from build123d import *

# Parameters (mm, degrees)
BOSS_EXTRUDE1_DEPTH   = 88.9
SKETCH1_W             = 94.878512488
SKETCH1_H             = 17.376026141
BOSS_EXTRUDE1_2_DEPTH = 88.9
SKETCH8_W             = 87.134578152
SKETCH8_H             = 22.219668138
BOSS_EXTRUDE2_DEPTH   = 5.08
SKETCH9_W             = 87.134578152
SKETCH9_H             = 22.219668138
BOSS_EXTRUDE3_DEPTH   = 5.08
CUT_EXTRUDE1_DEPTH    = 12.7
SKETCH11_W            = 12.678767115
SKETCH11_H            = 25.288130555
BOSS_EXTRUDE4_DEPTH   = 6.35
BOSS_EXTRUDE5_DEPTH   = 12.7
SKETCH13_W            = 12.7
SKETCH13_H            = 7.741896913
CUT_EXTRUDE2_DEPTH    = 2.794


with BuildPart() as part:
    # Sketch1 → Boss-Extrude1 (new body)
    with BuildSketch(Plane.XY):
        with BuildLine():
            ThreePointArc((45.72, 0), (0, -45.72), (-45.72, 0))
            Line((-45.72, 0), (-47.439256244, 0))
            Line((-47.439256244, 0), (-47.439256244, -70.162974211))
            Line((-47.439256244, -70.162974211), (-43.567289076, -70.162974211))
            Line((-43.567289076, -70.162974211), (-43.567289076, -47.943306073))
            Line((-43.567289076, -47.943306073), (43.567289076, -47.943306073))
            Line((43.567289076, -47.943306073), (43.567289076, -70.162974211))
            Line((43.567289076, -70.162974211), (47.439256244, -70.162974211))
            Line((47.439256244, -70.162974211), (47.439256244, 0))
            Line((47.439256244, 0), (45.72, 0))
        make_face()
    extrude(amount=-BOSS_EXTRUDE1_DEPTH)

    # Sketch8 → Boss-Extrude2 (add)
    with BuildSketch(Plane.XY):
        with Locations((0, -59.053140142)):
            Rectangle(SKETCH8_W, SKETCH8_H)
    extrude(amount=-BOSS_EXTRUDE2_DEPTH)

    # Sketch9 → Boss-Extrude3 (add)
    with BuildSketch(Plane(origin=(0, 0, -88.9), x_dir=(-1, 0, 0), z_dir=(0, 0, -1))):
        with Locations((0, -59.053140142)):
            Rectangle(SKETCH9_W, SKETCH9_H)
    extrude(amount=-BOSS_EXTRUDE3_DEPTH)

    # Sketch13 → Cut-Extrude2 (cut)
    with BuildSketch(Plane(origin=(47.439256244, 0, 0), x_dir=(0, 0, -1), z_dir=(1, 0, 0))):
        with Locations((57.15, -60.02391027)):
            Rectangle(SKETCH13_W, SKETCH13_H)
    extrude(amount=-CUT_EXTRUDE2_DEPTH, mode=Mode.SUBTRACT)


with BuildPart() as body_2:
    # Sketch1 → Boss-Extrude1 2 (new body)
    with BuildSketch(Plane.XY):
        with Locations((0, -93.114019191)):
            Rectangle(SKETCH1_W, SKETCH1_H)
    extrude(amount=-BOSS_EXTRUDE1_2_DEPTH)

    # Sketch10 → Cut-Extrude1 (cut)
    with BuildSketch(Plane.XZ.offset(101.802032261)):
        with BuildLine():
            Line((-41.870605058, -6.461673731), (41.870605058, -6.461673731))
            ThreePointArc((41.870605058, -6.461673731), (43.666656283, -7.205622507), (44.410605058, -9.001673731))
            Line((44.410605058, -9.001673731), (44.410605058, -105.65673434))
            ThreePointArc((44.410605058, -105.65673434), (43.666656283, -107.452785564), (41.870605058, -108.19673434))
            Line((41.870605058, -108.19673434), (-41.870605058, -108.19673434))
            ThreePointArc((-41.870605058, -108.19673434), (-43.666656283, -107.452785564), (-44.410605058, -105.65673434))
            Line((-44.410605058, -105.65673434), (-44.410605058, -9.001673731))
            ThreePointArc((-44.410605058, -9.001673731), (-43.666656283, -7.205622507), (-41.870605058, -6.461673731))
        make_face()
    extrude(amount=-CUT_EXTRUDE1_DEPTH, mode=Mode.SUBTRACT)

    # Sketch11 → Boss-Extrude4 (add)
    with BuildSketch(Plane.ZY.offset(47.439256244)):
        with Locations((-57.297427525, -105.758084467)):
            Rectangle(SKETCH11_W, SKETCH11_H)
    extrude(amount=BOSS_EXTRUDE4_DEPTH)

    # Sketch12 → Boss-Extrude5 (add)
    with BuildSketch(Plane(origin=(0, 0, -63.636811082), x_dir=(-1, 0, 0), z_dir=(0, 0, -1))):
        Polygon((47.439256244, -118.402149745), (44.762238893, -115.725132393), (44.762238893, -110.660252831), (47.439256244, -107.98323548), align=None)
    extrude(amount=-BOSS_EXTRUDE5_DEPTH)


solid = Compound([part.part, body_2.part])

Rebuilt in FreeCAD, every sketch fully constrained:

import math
import FreeCAD as App
import Part
import Sketcher

V = App.Vector
Q = App.Units.Quantity

doc = App.newDocument("Part")
body = doc.addObject("PartDesign::Body", "Body")

# Sketch on XY plane
sketch1 = doc.addObject("Sketcher::SketchObject", "Sketch")
body.addObject(sketch1)
sketch1.AttachmentSupport = (doc.XY_Plane, [""])
sketch1.MapMode = "FlatFace"
sketch1.addGeometry(Part.ArcOfCircle(Part.Circle(V(0, 0, 0), V(0, 0, 1), 45.7), math.radians(180), math.radians(360)), False)
sketch1.addGeometry(Part.LineSegment(V(-45.7, 0, 0), V(-47.4, 0, 0)), False)
sketch1.addGeometry(Part.LineSegment(V(-47.4, 0, 0), V(-47.4, -70.2, 0)), False)
sketch1.addGeometry(Part.LineSegment(V(-47.4, -70.2, 0), V(-43.6, -70.2, 0)), False)
sketch1.addGeometry(Part.LineSegment(V(-43.6, -70.2, 0), V(-43.6, -47.9, 0)), False)
sketch1.addGeometry(Part.LineSegment(V(-43.6, -47.9, 0), V(43.6, -47.9, 0)), False)
sketch1.addGeometry(Part.LineSegment(V(43.6, -47.9, 0), V(43.6, -70.2, 0)), False)
sketch1.addGeometry(Part.LineSegment(V(43.6, -70.2, 0), V(47.4, -70.2, 0)), False)
sketch1.addGeometry(Part.LineSegment(V(47.4, -70.2, 0), V(47.4, 0, 0)), False)
sketch1.addGeometry(Part.LineSegment(V(47.4, 0, 0), V(45.7, 0, 0)), False)
sketch1.addConstraint(Sketcher.Constraint("Coincident", 0, 1, 1, 1))
sketch1.addConstraint(Sketcher.Constraint("Coincident", 1, 2, 2, 1))
sketch1.addConstraint(Sketcher.Constraint("Coincident", 2, 2, 3, 1))
sketch1.addConstraint(Sketcher.Constraint("Coincident", 3, 2, 4, 1))
sketch1.addConstraint(Sketcher.Constraint("Coincident", 4, 2, 5, 1))
sketch1.addConstraint(Sketcher.Constraint("Coincident", 5, 2, 6, 1))
sketch1.addConstraint(Sketcher.Constraint("Coincident", 6, 2, 7, 1))
sketch1.addConstraint(Sketcher.Constraint("Coincident", 7, 2, 8, 1))
sketch1.addConstraint(Sketcher.Constraint("Coincident", 8, 2, 9, 1))
sketch1.addConstraint(Sketcher.Constraint("Coincident", 9, 2, 0, 2))
sketch1.addConstraint(Sketcher.Constraint("Horizontal", 1))
sketch1.addConstraint(Sketcher.Constraint("Vertical", 2))
sketch1.addConstraint(Sketcher.Constraint("Horizontal", 3))
sketch1.addConstraint(Sketcher.Constraint("Vertical", 4))
sketch1.addConstraint(Sketcher.Constraint("Horizontal", 5))
sketch1.addConstraint(Sketcher.Constraint("Vertical", 6))
sketch1.addConstraint(Sketcher.Constraint("Horizontal", 7))
sketch1.addConstraint(Sketcher.Constraint("Vertical", 8))
sketch1.addConstraint(Sketcher.Constraint("Horizontal", 9))
sketch1.addConstraint(Sketcher.Constraint("Coincident", 0, 3, -1, 1))
sketch1.addConstraint(Sketcher.Constraint("Symmetric", 1, 2, 8, 2, -1, 1))
sketch1.addConstraint(Sketcher.Constraint("Symmetric", 3, 2, 6, 2, -2))
sketch1.addConstraint(Sketcher.Constraint("PointOnObject", 0, 1, -1))
sketch1.addConstraint(Sketcher.Constraint("Radius", 0, Q("1.8 in")))
sketch1.addConstraint(Sketcher.Constraint("DistanceX", 5, 1, 5, 2, 87.134578))
sketch1.addConstraint(Sketcher.Constraint("DistanceY", 4, 1, 4, 2, 22.219668))
sketch1.addConstraint(Sketcher.Constraint("DistanceX", 1, 2, 1, 1, 1.719256))
sketch1.addConstraint(Sketcher.Constraint("DistanceY", 2, 2, 2, 1, 70.162974))
pad1 = doc.addObject("PartDesign::Pad", "Pad")
body.addObject(pad1)
pad1.Profile = sketch1
pad1.Length = Q("3.5 in")
pad1.Reversed = True

# Sketch on XY plane
sketch2 = doc.addObject("Sketcher::SketchObject", "Sketch001")
body.addObject(sketch2)
sketch2.AttachmentSupport = (doc.XY_Plane, [""])
sketch2.MapMode = "FlatFace"
sketch2.addGeometry(Part.LineSegment(V(-44, -48, 0), V(-44, -70, 0)), False)
sketch2.addGeometry(Part.LineSegment(V(-44, -70, 0), V(44, -70, 0)), False)
sketch2.addGeometry(Part.LineSegment(V(44, -70, 0), V(44, -48, 0)), False)
sketch2.addGeometry(Part.LineSegment(V(44, -48, 0), V(-44, -48, 0)), False)
sketch2.addConstraint(Sketcher.Constraint("Coincident", 0, 2, 1, 1))
sketch2.addConstraint(Sketcher.Constraint("Coincident", 1, 2, 2, 1))
sketch2.addConstraint(Sketcher.Constraint("Coincident", 2, 2, 3, 1))
sketch2.addConstraint(Sketcher.Constraint("Coincident", 3, 2, 0, 1))
sketch2.addConstraint(Sketcher.Constraint("Vertical", 0))
sketch2.addConstraint(Sketcher.Constraint("Horizontal", 1))
sketch2.addConstraint(Sketcher.Constraint("Vertical", 2))
sketch2.addConstraint(Sketcher.Constraint("Horizontal", 3))
sketch2.addConstraint(Sketcher.Constraint("DistanceX", 1, 1, 1, 2, 87.134578))
sketch2.addConstraint(Sketcher.Constraint("DistanceY", 0, 2, 0, 1, 22.219668))
sketch2.addConstraint(Sketcher.Constraint("DistanceX", 0, 2, -1, 1, 43.567289))
sketch2.addConstraint(Sketcher.Constraint("DistanceY", 0, 2, -1, 1, 70.162974))
pad2 = doc.addObject("PartDesign::Pad", "Pad001")
body.addObject(pad2)
pad2.Profile = sketch2
pad2.Length = Q("0.2 in")
pad2.Reversed = True

# Sketch on XY plane
sketch3 = doc.addObject("Sketcher::SketchObject", "Sketch002")
body.addObject(sketch3)
sketch3.AttachmentSupport = (doc.XY_Plane, [""])
sketch3.MapMode = "FlatFace"
sketch3.AttachmentOffset = App.Placement(V(0, 0, -3.5 * 25.4), App.Rotation())
sketch3.addGeometry(Part.LineSegment(V(44, -48, 0), V(44, -70, 0)), False)
sketch3.addGeometry(Part.LineSegment(V(44, -70, 0), V(-44, -70, 0)), False)
sketch3.addGeometry(Part.LineSegment(V(-44, -70, 0), V(-44, -48, 0)), False)
sketch3.addGeometry(Part.LineSegment(V(-44, -48, 0), V(44, -48, 0)), False)
sketch3.addConstraint(Sketcher.Constraint("Coincident", 0, 2, 1, 1))
sketch3.addConstraint(Sketcher.Constraint("Coincident", 1, 2, 2, 1))
sketch3.addConstraint(Sketcher.Constraint("Coincident", 2, 2, 3, 1))
sketch3.addConstraint(Sketcher.Constraint("Coincident", 3, 2, 0, 1))
sketch3.addConstraint(Sketcher.Constraint("Vertical", 0))
sketch3.addConstraint(Sketcher.Constraint("Horizontal", 1))
sketch3.addConstraint(Sketcher.Constraint("Vertical", 2))
sketch3.addConstraint(Sketcher.Constraint("Horizontal", 3))
sketch3.addConstraint(Sketcher.Constraint("DistanceX", 1, 2, 1, 1, 87.134578))
sketch3.addConstraint(Sketcher.Constraint("DistanceY", 0, 2, 0, 1, 22.219668))
sketch3.addConstraint(Sketcher.Constraint("DistanceX", -1, 1, 0, 2, 43.567289))
sketch3.addConstraint(Sketcher.Constraint("DistanceY", 0, 2, -1, 1, 70.162974))
pad3 = doc.addObject("PartDesign::Pad", "Pad002")
body.addObject(pad3)
pad3.Profile = sketch3
pad3.Length = Q("0.2 in")

# Sketch on YZ plane
sketch4 = doc.addObject("Sketcher::SketchObject", "Sketch003")
body.addObject(sketch4)
sketch4.AttachmentSupport = (doc.YZ_Plane, [""])
sketch4.MapMode = "FlatFace"
sketch4.AttachmentOffset = App.Placement(V(0, 0, 47.439256), App.Rotation())
sketch4.addGeometry(Part.LineSegment(V(-56, -51, 0), V(-64, -51, 0)), False)
sketch4.addGeometry(Part.LineSegment(V(-64, -51, 0), V(-64, -64, 0)), False)
sketch4.addGeometry(Part.LineSegment(V(-64, -64, 0), V(-56, -64, 0)), False)
sketch4.addGeometry(Part.LineSegment(V(-56, -64, 0), V(-56, -51, 0)), False)
sketch4.addConstraint(Sketcher.Constraint("Coincident", 0, 2, 1, 1))
sketch4.addConstraint(Sketcher.Constraint("Coincident", 1, 2, 2, 1))
sketch4.addConstraint(Sketcher.Constraint("Coincident", 2, 2, 3, 1))
sketch4.addConstraint(Sketcher.Constraint("Coincident", 3, 2, 0, 1))
sketch4.addConstraint(Sketcher.Constraint("Horizontal", 0))
sketch4.addConstraint(Sketcher.Constraint("Vertical", 1))
sketch4.addConstraint(Sketcher.Constraint("Horizontal", 2))
sketch4.addConstraint(Sketcher.Constraint("Vertical", 3))
sketch4.addConstraint(Sketcher.Constraint("DistanceY", 1, 2, 1, 1, Q("0.5 in")))
sketch4.addConstraint(Sketcher.Constraint("DistanceY", 0, 2, -1, 1, Q("2 in")))
sketch4.addConstraint(Sketcher.Constraint("DistanceX", 0, 2, 0, 1, 7.741897))
sketch4.addConstraint(Sketcher.Constraint("DistanceX", 0, 2, -1, 1, 63.894859))
pocket1 = doc.addObject("PartDesign::Pocket", "Pocket")
body.addObject(pocket1)
pocket1.Profile = sketch4
pocket1.Length = Q("0.11 in")
body2 = doc.addObject("PartDesign::Body", "Body001")

# Sketch on XY plane
sketch5 = doc.addObject("Sketcher::SketchObject", "Sketch004")
body2.addObject(sketch5)
sketch5.AttachmentSupport = (doc.getObject("XY_Plane001"), [""])
sketch5.MapMode = "FlatFace"
sketch5.addGeometry(Part.LineSegment(V(-47, -84, 0), V(-47, -102, 0)), False)
sketch5.addGeometry(Part.LineSegment(V(-47, -102, 0), V(47, -102, 0)), False)
sketch5.addGeometry(Part.LineSegment(V(47, -102, 0), V(47, -84, 0)), False)
sketch5.addGeometry(Part.LineSegment(V(47, -84, 0), V(-47, -84, 0)), False)
sketch5.addConstraint(Sketcher.Constraint("Coincident", 0, 2, 1, 1))
sketch5.addConstraint(Sketcher.Constraint("Coincident", 1, 2, 2, 1))
sketch5.addConstraint(Sketcher.Constraint("Coincident", 2, 2, 3, 1))
sketch5.addConstraint(Sketcher.Constraint("Coincident", 3, 2, 0, 1))
sketch5.addConstraint(Sketcher.Constraint("Vertical", 0))
sketch5.addConstraint(Sketcher.Constraint("Horizontal", 1))
sketch5.addConstraint(Sketcher.Constraint("Vertical", 2))
sketch5.addConstraint(Sketcher.Constraint("Horizontal", 3))
sketch5.addConstraint(Sketcher.Constraint("DistanceX", 1, 1, 1, 2, 94.878512))
sketch5.addConstraint(Sketcher.Constraint("DistanceY", 0, 2, 0, 1, 17.376026))
sketch5.addConstraint(Sketcher.Constraint("DistanceX", 0, 2, -1, 1, 47.439256))
sketch5.addConstraint(Sketcher.Constraint("DistanceY", 0, 2, -1, 1, 101.802032))
pad4 = doc.addObject("PartDesign::Pad", "Pad003")
body2.addObject(pad4)
pad4.Profile = sketch5
pad4.Length = Q("3.5 in")
pad4.Reversed = True

# Sketch on XZ plane
sketch6 = doc.addObject("Sketcher::SketchObject", "Sketch005")
body2.addObject(sketch6)
sketch6.AttachmentSupport = (doc.getObject("XZ_Plane001"), [""])
sketch6.MapMode = "FlatFace"
sketch6.AttachmentOffset = App.Placement(V(0, 0, 101.802032), App.Rotation())
sketch6.addGeometry(Part.LineSegment(V(41.9, -6.5, 0), V(-41.9, -6.5, 0)), False)
sketch6.addGeometry(Part.ArcOfCircle(Part.Circle(V(-41.9, -9, 0), V(0, 0, 1), 2.5), math.radians(90), math.radians(180)), False)
sketch6.addGeometry(Part.LineSegment(V(-44.4, -9, 0), V(-44.4, -105.7, 0)), False)
sketch6.addGeometry(Part.ArcOfCircle(Part.Circle(V(-41.9, -105.7, 0), V(0, 0, 1), 2.5), math.radians(180), math.radians(270)), False)
sketch6.addGeometry(Part.LineSegment(V(-41.9, -108.2, 0), V(41.9, -108.2, 0)), False)
sketch6.addGeometry(Part.ArcOfCircle(Part.Circle(V(41.9, -105.7, 0), V(0, 0, 1), 2.5), math.radians(-90), math.radians(0)), False)
sketch6.addGeometry(Part.LineSegment(V(44.4, -105.7, 0), V(44.4, -9, 0)), False)
sketch6.addGeometry(Part.ArcOfCircle(Part.Circle(V(41.9, -9, 0), V(0, 0, 1), 2.5), math.radians(0), math.radians(90)), False)
sketch6.addConstraint(Sketcher.Constraint("Tangent", 0, 2, 1, 1))
sketch6.addConstraint(Sketcher.Constraint("Tangent", 1, 2, 2, 1))
sketch6.addConstraint(Sketcher.Constraint("Tangent", 2, 2, 3, 1))
sketch6.addConstraint(Sketcher.Constraint("Tangent", 3, 2, 4, 1))
sketch6.addConstraint(Sketcher.Constraint("Tangent", 4, 2, 5, 1))
sketch6.addConstraint(Sketcher.Constraint("Tangent", 5, 2, 6, 1))
sketch6.addConstraint(Sketcher.Constraint("Tangent", 6, 2, 7, 1))
sketch6.addConstraint(Sketcher.Constraint("Tangent", 7, 2, 0, 1))
sketch6.addConstraint(Sketcher.Constraint("Horizontal", 0))
sketch6.addConstraint(Sketcher.Constraint("Vertical", 2))
sketch6.addConstraint(Sketcher.Constraint("Horizontal", 4))
sketch6.addConstraint(Sketcher.Constraint("Vertical", 6))
sketch6.addConstraint(Sketcher.Constraint("Equal", 1, 3))
sketch6.addConstraint(Sketcher.Constraint("Equal", 3, 5))
sketch6.addConstraint(Sketcher.Constraint("Equal", 5, 7))
sketch6.addConstraint(Sketcher.Constraint("Radius", 1, Q("0.1 in")))
sketch6.addConstraint(Sketcher.Constraint("DistanceX", 0, 2, 0, 1, 83.74121))
sketch6.addConstraint(Sketcher.Constraint("DistanceY", 2, 2, 2, 1, 96.655061))
sketch6.addConstraint(Sketcher.Constraint("DistanceX", 1, 3, -1, 1, 41.870605))
sketch6.addConstraint(Sketcher.Constraint("DistanceY", 1, 3, -1, 1, 9.001674))
pocket2 = doc.addObject("PartDesign::Pocket", "Pocket001")
body2.addObject(pocket2)
pocket2.Profile = sketch6
pocket2.Length = Q("0.5 in")

# Sketch on YZ plane
sketch7 = doc.addObject("Sketcher::SketchObject", "Sketch006")
body2.addObject(sketch7)
sketch7.AttachmentSupport = (doc.getObject("YZ_Plane001"), [""])
sketch7.MapMode = "FlatFace"
sketch7.AttachmentOffset = App.Placement(V(0, 0, -47.439256), App.Rotation())
sketch7.addGeometry(Part.LineSegment(V(-93, -64, 0), V(-118, -64, 0)), False)
sketch7.addGeometry(Part.LineSegment(V(-118, -64, 0), V(-118, -51, 0)), False)
sketch7.addGeometry(Part.LineSegment(V(-118, -51, 0), V(-93, -51, 0)), False)
sketch7.addGeometry(Part.LineSegment(V(-93, -51, 0), V(-93, -64, 0)), False)
sketch7.addConstraint(Sketcher.Constraint("Coincident", 0, 2, 1, 1))
sketch7.addConstraint(Sketcher.Constraint("Coincident", 1, 2, 2, 1))
sketch7.addConstraint(Sketcher.Constraint("Coincident", 2, 2, 3, 1))
sketch7.addConstraint(Sketcher.Constraint("Coincident", 3, 2, 0, 1))
sketch7.addConstraint(Sketcher.Constraint("Horizontal", 0))
sketch7.addConstraint(Sketcher.Constraint("Vertical", 1))
sketch7.addConstraint(Sketcher.Constraint("Horizontal", 2))
sketch7.addConstraint(Sketcher.Constraint("Vertical", 3))
sketch7.addConstraint(Sketcher.Constraint("DistanceX", 0, 2, 0, 1, 25.288131))
sketch7.addConstraint(Sketcher.Constraint("DistanceY", 1, 1, 1, 2, 12.678767))
sketch7.addConstraint(Sketcher.Constraint("DistanceX", 0, 2, -1, 1, 118.40215))
sketch7.addConstraint(Sketcher.Constraint("DistanceY", 0, 2, -1, 1, 63.636811))
pad5 = doc.addObject("PartDesign::Pad", "Pad004")
body2.addObject(pad5)
pad5.Profile = sketch7
pad5.Length = Q("0.25 in")
pad5.Reversed = True

# Sketch on XY plane
sketch8 = doc.addObject("Sketcher::SketchObject", "Sketch007")
body2.addObject(sketch8)
sketch8.AttachmentSupport = (doc.getObject("XY_Plane001"), [""])
sketch8.MapMode = "FlatFace"
sketch8.AttachmentOffset = App.Placement(V(0, 0, -63.636811), App.Rotation())
sketch8.addGeometry(Part.LineSegment(V(-44.8, -115.7, 0), V(-47.4, -118.4, 0)), False)
sketch8.addGeometry(Part.LineSegment(V(-47.4, -118.4, 0), V(-47.4, -108, 0)), False)
sketch8.addGeometry(Part.LineSegment(V(-47.4, -108, 0), V(-44.8, -110.7, 0)), False)
sketch8.addGeometry(Part.LineSegment(V(-44.8, -110.7, 0), V(-44.8, -115.7, 0)), False)
sketch8.addConstraint(Sketcher.Constraint("Coincident", 0, 2, 1, 1))
sketch8.addConstraint(Sketcher.Constraint("Coincident", 1, 2, 2, 1))
sketch8.addConstraint(Sketcher.Constraint("Coincident", 2, 2, 3, 1))
sketch8.addConstraint(Sketcher.Constraint("Coincident", 3, 2, 0, 1))
sketch8.addConstraint(Sketcher.Constraint("Vertical", 1))
sketch8.addConstraint(Sketcher.Constraint("Vertical", 3))
sketch8.addConstraint(Sketcher.Constraint("Perpendicular", 0, 2))
sketch8.addConstraint(Sketcher.Constraint("Equal", 0, 2))
sketch8.addConstraint(Sketcher.Constraint("DistanceY", 3, 2, 3, 1, 5.06488))
sketch8.addConstraint(Sketcher.Constraint("DistanceY", 1, 1, 1, 2, 10.418914))
sketch8.addConstraint(Sketcher.Constraint("DistanceY", 0, 2, -1, 1, 118.40215))
sketch8.addConstraint(Sketcher.Constraint("DistanceX", 2, 2, -1, 1, 44.762239))
pad6 = doc.addObject("PartDesign::Pad", "Pad005")
body2.addObject(pad6)
pad6.Profile = sketch8
pad6.Length = Q("0.5 in")

doc.recompute()
